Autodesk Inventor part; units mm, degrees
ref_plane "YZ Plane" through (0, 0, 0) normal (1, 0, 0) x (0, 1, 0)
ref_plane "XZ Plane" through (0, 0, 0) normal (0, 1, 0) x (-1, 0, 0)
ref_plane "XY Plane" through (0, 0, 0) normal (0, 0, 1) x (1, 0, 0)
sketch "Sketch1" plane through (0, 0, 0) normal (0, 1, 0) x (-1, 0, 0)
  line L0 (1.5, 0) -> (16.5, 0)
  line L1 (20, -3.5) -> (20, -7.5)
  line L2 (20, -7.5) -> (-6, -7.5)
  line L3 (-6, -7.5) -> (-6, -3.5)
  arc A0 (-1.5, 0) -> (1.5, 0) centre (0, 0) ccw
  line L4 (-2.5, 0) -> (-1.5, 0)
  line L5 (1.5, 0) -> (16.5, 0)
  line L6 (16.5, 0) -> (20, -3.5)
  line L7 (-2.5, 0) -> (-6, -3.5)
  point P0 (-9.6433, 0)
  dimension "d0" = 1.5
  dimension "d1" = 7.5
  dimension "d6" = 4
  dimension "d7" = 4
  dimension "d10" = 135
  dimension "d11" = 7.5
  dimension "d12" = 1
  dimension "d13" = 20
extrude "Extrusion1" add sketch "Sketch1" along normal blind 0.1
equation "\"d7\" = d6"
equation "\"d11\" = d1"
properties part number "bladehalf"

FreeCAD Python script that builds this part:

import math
import FreeCAD as App
import Part
import Sketcher
Q = App.Units.Quantity

doc = App.newDocument("Part")
body = doc.addObject("PartDesign::Body", "Body")

sketch1 = body.newObject("Sketcher::SketchObject", "Sketch")
sketch1.AttachmentSupport = (doc.getObject("XZ_Plane"), [""])
sketch1.MapMode = "FlatFace"
sketch1.addGeometry([
    Part.LineSegment(App.Vector(-16.5, 0, 0), App.Vector(-1.5, 0, 0)),
    Part.ArcOfCircle(Part.Circle(App.Vector(0, 0, 0), App.Vector(0, 0, 1), 1.5), math.radians(180), math.radians(360)),
    Part.LineSegment(App.Vector(1.5, 0, 0), App.Vector(2.5, 0, 0)),
    Part.LineSegment(App.Vector(2.5, 0, 0), App.Vector(6, -3.5, 0)),
    Part.LineSegment(App.Vector(6, -3.5, 0), App.Vector(6, -7.5, 0)),
    Part.LineSegment(App.Vector(6, -7.5, 0), App.Vector(-20, -7.5, 0)),
    Part.LineSegment(App.Vector(-20, -7.5, 0), App.Vector(-20, -3.5, 0)),
    Part.LineSegment(App.Vector(-20, -3.5, 0), App.Vector(-16.5, 0, 0)),
], False)
sketch1.addConstraint([
    Sketcher.Constraint("Coincident", 0, 2, 1, 1),
    Sketcher.Constraint("Coincident", 1, 2, 2, 1),
    Sketcher.Constraint("Coincident", 2, 2, 3, 1),
    Sketcher.Constraint("Coincident", 3, 2, 4, 1),
    Sketcher.Constraint("Coincident", 4, 2, 5, 1),
    Sketcher.Constraint("Coincident", 5, 2, 6, 1),
    Sketcher.Constraint("Coincident", 6, 2, 7, 1),
    Sketcher.Constraint("Coincident", 7, 2, 0, 1),
    Sketcher.Constraint("Horizontal", 0),
    Sketcher.Constraint("Horizontal", 2),
    Sketcher.Constraint("Vertical", 4),
    Sketcher.Constraint("Horizontal", 5),
    Sketcher.Constraint("Vertical", 6),
    Sketcher.Constraint("Coincident", 1, 3, -1, 1),
    Sketcher.Constraint("PointOnObject", 0, 2, -1),
    Sketcher.Constraint("PointOnObject", 1, 2, -1),
    Sketcher.Constraint("Perpendicular", 3, 7),
    Sketcher.Constraint("Horizontal", 3, 2, 6, 2),
    Sketcher.Constraint("Equal", 3, 7),
    Sketcher.Constraint("Radius", 1, Q("1.5 mm")),
    Sketcher.Constraint("DistanceX", 2, 1, 2, 2, Q("1 mm")),
    Sketcher.Constraint("DistanceY", 4, 2, 4, 1, Q("4 mm")),
    Sketcher.Constraint("DistanceX", 5, 2, -1, 1, Q("20 mm")),
    Sketcher.Constraint("DistanceY", 4, 2, -1, 1, Q("7.5 mm")),
])
pad1 = body.newObject("PartDesign::Pad", "Pad")
pad1.Profile = sketch1
pad1.Length = 0.1
pad1.Reversed = True

doc.recompute()
